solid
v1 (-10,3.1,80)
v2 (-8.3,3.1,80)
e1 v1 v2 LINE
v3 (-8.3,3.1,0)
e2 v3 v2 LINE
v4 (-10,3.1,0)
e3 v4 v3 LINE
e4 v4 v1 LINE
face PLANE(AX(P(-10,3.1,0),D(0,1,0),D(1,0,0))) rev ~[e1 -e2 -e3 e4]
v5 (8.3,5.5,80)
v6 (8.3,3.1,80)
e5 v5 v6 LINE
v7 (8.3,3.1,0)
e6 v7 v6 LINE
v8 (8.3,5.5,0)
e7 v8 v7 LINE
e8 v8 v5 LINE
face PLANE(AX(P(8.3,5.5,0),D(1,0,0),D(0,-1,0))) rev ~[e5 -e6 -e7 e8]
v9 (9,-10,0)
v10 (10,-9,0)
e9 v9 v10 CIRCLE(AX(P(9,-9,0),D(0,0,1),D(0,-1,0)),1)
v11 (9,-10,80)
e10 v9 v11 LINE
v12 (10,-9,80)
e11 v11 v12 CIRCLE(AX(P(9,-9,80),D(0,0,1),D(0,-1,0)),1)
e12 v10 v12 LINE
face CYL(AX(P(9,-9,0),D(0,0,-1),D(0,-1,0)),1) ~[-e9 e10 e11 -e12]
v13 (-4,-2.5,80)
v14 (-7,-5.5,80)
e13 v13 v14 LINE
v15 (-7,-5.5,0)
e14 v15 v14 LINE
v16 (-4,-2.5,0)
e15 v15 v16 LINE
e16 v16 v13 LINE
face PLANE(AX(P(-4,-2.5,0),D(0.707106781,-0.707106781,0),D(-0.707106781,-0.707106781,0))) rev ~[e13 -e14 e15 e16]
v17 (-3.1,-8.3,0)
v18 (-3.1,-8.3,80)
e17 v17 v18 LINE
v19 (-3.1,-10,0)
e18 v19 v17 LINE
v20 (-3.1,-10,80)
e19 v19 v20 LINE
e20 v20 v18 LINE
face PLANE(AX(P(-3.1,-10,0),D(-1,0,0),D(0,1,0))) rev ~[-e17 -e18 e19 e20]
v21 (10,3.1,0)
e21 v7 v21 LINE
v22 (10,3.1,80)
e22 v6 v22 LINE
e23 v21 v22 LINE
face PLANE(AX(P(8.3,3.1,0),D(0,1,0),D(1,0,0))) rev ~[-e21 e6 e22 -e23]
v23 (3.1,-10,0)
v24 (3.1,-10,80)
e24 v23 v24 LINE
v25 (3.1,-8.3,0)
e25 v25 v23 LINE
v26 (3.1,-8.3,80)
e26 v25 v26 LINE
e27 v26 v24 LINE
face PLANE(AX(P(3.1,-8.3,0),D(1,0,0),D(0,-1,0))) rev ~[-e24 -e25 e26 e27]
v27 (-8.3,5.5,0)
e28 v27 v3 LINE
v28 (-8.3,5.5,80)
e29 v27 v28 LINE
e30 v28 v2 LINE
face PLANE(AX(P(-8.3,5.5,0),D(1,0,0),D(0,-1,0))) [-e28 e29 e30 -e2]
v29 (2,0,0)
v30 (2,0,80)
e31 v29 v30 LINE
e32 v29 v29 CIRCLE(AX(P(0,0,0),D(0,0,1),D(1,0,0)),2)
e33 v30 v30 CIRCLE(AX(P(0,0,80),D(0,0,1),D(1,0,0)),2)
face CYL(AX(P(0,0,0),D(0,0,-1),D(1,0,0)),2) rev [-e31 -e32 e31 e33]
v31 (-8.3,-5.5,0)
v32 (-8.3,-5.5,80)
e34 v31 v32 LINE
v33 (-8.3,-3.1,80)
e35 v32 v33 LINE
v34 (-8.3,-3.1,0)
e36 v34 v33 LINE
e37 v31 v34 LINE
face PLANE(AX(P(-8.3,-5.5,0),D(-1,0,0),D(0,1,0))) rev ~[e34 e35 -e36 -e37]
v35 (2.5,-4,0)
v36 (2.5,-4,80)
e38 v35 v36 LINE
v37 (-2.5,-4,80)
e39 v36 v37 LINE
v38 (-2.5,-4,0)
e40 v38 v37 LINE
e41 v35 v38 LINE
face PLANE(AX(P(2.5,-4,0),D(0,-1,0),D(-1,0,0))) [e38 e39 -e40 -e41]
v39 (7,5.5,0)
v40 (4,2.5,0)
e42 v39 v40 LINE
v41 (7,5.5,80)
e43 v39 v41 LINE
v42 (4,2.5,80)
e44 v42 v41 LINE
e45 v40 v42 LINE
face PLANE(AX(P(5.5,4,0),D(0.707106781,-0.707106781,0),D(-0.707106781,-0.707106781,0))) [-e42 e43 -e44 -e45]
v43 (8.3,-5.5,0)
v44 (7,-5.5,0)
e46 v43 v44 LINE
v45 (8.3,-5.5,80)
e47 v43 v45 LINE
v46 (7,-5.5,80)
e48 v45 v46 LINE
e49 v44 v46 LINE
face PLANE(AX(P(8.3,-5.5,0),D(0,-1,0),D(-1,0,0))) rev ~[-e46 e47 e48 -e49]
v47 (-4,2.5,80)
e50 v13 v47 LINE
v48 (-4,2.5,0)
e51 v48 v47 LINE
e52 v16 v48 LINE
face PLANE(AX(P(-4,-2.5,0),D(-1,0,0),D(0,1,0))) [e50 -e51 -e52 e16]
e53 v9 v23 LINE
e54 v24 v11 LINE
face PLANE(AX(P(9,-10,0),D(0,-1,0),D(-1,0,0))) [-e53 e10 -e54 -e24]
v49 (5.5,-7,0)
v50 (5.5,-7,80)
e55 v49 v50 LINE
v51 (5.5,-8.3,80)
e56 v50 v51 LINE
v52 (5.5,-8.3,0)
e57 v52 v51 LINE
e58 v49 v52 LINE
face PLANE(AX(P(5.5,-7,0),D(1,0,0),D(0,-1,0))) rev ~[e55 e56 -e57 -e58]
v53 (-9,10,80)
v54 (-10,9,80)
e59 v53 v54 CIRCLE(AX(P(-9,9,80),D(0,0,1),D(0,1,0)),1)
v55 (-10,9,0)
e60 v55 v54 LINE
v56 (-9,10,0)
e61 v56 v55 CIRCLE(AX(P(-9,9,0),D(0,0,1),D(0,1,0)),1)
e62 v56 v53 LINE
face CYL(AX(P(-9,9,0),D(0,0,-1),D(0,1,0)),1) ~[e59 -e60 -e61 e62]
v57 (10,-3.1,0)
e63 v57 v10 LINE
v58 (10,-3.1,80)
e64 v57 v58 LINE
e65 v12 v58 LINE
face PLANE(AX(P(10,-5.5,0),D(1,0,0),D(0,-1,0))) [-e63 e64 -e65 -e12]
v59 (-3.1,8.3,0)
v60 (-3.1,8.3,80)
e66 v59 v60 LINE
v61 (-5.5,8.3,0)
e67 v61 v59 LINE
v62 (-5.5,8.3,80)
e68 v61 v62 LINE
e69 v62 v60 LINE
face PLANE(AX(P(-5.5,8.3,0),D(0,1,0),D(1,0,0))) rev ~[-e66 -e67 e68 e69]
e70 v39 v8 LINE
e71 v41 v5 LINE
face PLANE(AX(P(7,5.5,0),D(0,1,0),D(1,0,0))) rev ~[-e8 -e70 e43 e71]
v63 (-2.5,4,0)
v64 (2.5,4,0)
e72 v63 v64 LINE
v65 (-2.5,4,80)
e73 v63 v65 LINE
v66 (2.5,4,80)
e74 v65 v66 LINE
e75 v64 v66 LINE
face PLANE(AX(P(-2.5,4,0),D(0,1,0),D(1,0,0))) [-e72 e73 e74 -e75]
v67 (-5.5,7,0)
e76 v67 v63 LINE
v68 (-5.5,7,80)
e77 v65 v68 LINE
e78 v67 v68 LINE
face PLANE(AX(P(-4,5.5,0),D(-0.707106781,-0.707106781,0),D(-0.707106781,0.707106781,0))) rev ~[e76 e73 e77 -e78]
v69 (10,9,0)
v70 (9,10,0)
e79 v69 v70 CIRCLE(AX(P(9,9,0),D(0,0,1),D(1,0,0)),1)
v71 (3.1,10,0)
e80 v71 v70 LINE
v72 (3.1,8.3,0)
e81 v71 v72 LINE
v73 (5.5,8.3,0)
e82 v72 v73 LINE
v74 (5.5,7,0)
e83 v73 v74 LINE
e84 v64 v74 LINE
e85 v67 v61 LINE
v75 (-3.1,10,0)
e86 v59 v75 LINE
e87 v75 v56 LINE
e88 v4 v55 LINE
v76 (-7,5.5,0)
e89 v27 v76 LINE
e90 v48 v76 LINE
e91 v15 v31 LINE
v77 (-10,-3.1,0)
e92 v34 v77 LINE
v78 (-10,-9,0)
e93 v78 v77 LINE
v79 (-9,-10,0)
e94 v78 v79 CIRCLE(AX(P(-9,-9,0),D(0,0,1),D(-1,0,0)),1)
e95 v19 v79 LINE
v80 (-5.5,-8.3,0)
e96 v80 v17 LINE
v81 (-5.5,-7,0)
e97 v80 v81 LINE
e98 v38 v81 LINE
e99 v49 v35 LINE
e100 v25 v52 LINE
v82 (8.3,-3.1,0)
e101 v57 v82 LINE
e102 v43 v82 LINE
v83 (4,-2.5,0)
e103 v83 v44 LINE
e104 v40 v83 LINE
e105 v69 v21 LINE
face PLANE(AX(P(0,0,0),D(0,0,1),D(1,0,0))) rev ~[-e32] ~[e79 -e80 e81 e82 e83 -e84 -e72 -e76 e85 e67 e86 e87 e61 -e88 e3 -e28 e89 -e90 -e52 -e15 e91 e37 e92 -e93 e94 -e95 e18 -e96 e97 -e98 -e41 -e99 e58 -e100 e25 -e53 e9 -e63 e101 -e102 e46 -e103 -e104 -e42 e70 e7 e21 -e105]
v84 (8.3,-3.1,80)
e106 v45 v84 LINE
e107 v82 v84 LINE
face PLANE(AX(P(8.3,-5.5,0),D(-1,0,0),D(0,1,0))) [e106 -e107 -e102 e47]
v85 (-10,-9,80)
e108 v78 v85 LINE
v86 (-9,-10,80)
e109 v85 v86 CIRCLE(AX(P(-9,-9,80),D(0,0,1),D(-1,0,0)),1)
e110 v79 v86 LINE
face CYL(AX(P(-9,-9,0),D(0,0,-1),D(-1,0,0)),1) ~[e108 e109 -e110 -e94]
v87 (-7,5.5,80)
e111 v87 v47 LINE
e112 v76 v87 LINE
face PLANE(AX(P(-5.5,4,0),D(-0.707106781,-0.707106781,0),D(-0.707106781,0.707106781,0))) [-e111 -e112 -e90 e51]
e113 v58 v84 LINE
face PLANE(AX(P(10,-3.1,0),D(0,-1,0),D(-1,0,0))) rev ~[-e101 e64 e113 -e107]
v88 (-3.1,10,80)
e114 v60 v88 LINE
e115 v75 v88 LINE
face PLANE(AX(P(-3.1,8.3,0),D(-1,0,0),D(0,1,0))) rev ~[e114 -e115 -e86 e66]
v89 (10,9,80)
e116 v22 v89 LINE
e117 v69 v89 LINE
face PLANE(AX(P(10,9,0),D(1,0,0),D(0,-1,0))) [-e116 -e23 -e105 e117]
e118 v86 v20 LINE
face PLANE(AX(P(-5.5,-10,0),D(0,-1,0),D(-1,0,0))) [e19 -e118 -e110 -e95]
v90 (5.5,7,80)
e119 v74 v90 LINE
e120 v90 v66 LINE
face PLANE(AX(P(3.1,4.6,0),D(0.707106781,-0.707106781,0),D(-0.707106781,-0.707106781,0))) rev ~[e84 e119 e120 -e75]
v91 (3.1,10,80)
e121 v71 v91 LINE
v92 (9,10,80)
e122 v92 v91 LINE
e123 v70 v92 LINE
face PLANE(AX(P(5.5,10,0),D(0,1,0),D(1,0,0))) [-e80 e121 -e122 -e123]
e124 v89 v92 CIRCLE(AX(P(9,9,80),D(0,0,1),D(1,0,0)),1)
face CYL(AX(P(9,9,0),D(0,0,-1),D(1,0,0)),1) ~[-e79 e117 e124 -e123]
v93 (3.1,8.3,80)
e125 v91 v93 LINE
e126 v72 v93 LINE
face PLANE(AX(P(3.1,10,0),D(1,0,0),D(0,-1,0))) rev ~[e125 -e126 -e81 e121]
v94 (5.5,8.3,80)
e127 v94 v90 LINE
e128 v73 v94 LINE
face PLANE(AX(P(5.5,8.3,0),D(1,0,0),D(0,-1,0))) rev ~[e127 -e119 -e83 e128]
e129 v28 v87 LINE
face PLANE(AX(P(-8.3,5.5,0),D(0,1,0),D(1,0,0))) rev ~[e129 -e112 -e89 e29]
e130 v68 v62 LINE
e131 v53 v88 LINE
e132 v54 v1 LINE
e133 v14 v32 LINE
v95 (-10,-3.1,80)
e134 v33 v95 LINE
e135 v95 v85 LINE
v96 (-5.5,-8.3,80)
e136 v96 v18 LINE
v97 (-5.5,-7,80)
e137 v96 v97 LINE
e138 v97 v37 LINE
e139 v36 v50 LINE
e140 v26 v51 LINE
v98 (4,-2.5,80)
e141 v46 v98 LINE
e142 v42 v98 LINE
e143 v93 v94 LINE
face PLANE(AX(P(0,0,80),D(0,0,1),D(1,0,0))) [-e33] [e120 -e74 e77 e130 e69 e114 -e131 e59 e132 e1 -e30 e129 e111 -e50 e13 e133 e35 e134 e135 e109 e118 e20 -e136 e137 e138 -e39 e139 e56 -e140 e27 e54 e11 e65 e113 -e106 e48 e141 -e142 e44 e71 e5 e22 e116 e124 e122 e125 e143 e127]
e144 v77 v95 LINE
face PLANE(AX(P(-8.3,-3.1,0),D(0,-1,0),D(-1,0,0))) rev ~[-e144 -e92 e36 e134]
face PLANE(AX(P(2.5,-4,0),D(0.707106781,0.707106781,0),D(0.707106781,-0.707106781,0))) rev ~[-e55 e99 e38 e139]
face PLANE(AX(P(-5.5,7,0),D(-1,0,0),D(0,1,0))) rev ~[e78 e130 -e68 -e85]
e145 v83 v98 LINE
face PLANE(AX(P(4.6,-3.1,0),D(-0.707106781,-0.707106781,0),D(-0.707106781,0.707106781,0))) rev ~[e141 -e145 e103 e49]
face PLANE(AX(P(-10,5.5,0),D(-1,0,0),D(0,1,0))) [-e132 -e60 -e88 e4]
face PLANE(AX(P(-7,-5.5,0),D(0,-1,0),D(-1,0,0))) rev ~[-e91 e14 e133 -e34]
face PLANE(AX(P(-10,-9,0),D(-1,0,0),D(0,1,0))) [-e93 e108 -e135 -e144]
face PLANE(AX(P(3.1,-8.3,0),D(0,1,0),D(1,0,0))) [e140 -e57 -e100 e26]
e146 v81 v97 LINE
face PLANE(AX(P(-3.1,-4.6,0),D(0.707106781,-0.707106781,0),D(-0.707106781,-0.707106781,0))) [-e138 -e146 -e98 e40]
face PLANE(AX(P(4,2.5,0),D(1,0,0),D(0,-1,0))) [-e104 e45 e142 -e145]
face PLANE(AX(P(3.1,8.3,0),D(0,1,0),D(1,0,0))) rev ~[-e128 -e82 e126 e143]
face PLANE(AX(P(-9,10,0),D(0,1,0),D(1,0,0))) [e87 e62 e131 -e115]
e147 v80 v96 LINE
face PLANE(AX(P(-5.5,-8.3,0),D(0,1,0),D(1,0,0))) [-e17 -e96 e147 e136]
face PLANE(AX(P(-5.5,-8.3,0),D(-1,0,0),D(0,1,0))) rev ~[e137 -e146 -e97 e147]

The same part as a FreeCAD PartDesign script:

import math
import FreeCAD as App
import Part
import Sketcher
from FreeCAD import Vector

doc = App.newDocument("Part")
body = doc.addObject("PartDesign::Body", "Body")

# Sketch on XY plane
sketch1 = body.newObject("Sketcher::SketchObject", "Sketch")
sketch1.AttachmentSupport = (doc.getObject("XY_Plane"), [""])
sketch1.MapMode = "FlatFace"
sketch1.addGeometry([
    Part.ArcOfCircle(Part.Circle(Vector(-9, 9, 0), Vector(0, 0, 1), 1), math.radians(90), math.radians(180)),  # 0
    Part.LineSegment(Vector(-10, 9, 0), Vector(-10, 3.1, 0)),  # 1
    Part.LineSegment(Vector(-10, 3.1, 0), Vector(-8.3, 3.1, 0)),  # 2
    Part.LineSegment(Vector(-8.3, 3.1, 0), Vector(-8.3, 5.5, 0)),  # 3
    Part.LineSegment(Vector(-8.3, 5.5, 0), Vector(-7, 5.5, 0)),  # 4
    Part.LineSegment(Vector(-7, 5.5, 0), Vector(-4, 2.5, 0)),  # 5
    Part.LineSegment(Vector(-4, 2.5, 0), Vector(-4, -2.5, 0)),  # 6
    Part.LineSegment(Vector(-4, -2.5, 0), Vector(-7, -5.5, 0)),  # 7
    Part.LineSegment(Vector(-7, -5.5, 0), Vector(-8.3, -5.5, 0)),  # 8
    Part.LineSegment(Vector(-8.3, -5.5, 0), Vector(-8.3, -3.1, 0)),  # 9
    Part.LineSegment(Vector(-8.3, -3.1, 0), Vector(-10, -3.1, 0)),  # 10
    Part.LineSegment(Vector(-10, -3.1, 0), Vector(-10, -9, 0)),  # 11
    Part.ArcOfCircle(Part.Circle(Vector(-9, -9, 0), Vector(0, 0, 1), 1), math.radians(180), math.radians(270)),  # 12
    Part.LineSegment(Vector(-9, -10, 0), Vector(-3.1, -10, 0)),  # 13
    Part.LineSegment(Vector(-3.1, -10, 0), Vector(-3.1, -8.3, 0)),  # 14
    Part.LineSegment(Vector(-3.1, -8.3, 0), Vector(-5.5, -8.3, 0)),  # 15
    Part.LineSegment(Vector(-5.5, -8.3, 0), Vector(-5.5, -7, 0)),  # 16
    Part.LineSegment(Vector(-5.5, -7, 0), Vector(-2.5, -4, 0)),  # 17
    Part.LineSegment(Vector(-2.5, -4, 0), Vector(2.5, -4, 0)),  # 18
    Part.LineSegment(Vector(2.5, -4, 0), Vector(5.5, -7, 0)),  # 19
    Part.LineSegment(Vector(5.5, -7, 0), Vector(5.5, -8.3, 0)),  # 20
    Part.LineSegment(Vector(5.5, -8.3, 0), Vector(3.1, -8.3, 0)),  # 21
    Part.LineSegment(Vector(3.1, -8.3, 0), Vector(3.1, -10, 0)),  # 22
    Part.LineSegment(Vector(3.1, -10, 0), Vector(9, -10, 0)),  # 23
    Part.ArcOfCircle(Part.Circle(Vector(9, -9, 0), Vector(0, 0, 1), 1), math.radians(-90), math.radians(0)),  # 24
    Part.LineSegment(Vector(10, -9, 0), Vector(10, -3.1, 0)),  # 25
    Part.LineSegment(Vector(10, -3.1, 0), Vector(8.3, -3.1, 0)),  # 26
    Part.LineSegment(Vector(8.3, -3.1, 0), Vector(8.3, -5.5, 0)),  # 27
    Part.LineSegment(Vector(8.3, -5.5, 0), Vector(7, -5.5, 0)),  # 28
    Part.LineSegment(Vector(7, -5.5, 0), Vector(4, -2.5, 0)),  # 29
    Part.LineSegment(Vector(4, -2.5, 0), Vector(4, 2.5, 0)),  # 30
    Part.LineSegment(Vector(4, 2.5, 0), Vector(7, 5.5, 0)),  # 31
    Part.LineSegment(Vector(7, 5.5, 0), Vector(8.3, 5.5, 0)),  # 32
    Part.LineSegment(Vector(8.3, 5.5, 0), Vector(8.3, 3.1, 0)),  # 33
    Part.LineSegment(Vector(8.3, 3.1, 0), Vector(10, 3.1, 0)),  # 34
    Part.LineSegment(Vector(10, 3.1, 0), Vector(10, 9, 0)),  # 35
    Part.ArcOfCircle(Part.Circle(Vector(9, 9, 0), Vector(0, 0, 1), 1), math.radians(0), math.radians(90)),  # 36
    Part.LineSegment(Vector(9, 10, 0), Vector(3.1, 10, 0)),  # 37
    Part.LineSegment(Vector(3.1, 10, 0), Vector(3.1, 8.3, 0)),  # 38
    Part.LineSegment(Vector(3.1, 8.3, 0), Vector(5.5, 8.3, 0)),  # 39
    Part.LineSegment(Vector(5.5, 8.3, 0), Vector(5.5, 7, 0)),  # 40
    Part.LineSegment(Vector(5.5, 7, 0), Vector(2.5, 4, 0)),  # 41
    Part.LineSegment(Vector(2.5, 4, 0), Vector(-2.5, 4, 0)),  # 42
    Part.LineSegment(Vector(-2.5, 4, 0), Vector(-5.5, 7, 0)),  # 43
    Part.LineSegment(Vector(-5.5, 7, 0), Vector(-5.5, 8.3, 0)),  # 44
    Part.LineSegment(Vector(-5.5, 8.3, 0), Vector(-3.1, 8.3, 0)),  # 45
    Part.LineSegment(Vector(-3.1, 8.3, 0), Vector(-3.1, 10, 0)),  # 46
    Part.LineSegment(Vector(-3.1, 10, 0), Vector(-9, 10, 0)),  # 47
    Part.Circle(Vector(0, 0, 0), Vector(0, 0, 1), 2),  # 48
], False)
sketch1.addConstraint([
    Sketcher.Constraint("Tangent", 0, 2, 1, 1),
    Sketcher.Constraint("Coincident", 1, 2, 2, 1),
    Sketcher.Constraint("Coincident", 2, 2, 3, 1),
    Sketcher.Constraint("Coincident", 3, 2, 4, 1),
    Sketcher.Constraint("Coincident", 4, 2, 5, 1),
    Sketcher.Constraint("Coincident", 5, 2, 6, 1),
    Sketcher.Constraint("Coincident", 6, 2, 7, 1),
    Sketcher.Constraint("Coincident", 7, 2, 8, 1),
    Sketcher.Constraint("Coincident", 8, 2, 9, 1),
    Sketcher.Constraint("Coincident", 9, 2, 10, 1),
    Sketcher.Constraint("Coincident", 10, 2, 11, 1),
    Sketcher.Constraint("Tangent", 11, 2, 12, 1),
    Sketcher.Constraint("Tangent", 12, 2, 13, 1),
    Sketcher.Constraint("Coincident", 13, 2, 14, 1),
    Sketcher.Constraint("Coincident", 14, 2, 15, 1),
    Sketcher.Constraint("Coincident", 15, 2, 16, 1),
    Sketcher.Constraint("Coincident", 16, 2, 17, 1),
    Sketcher.Constraint("Coincident", 17, 2, 18, 1),
    Sketcher.Constraint("Coincident", 18, 2, 19, 1),
    Sketcher.Constraint("Coincident", 19, 2, 20, 1),
    Sketcher.Constraint("Coincident", 20, 2, 21, 1),
    Sketcher.Constraint("Coincident", 21, 2, 22, 1),
    Sketcher.Constraint("Coincident", 22, 2, 23, 1),
    Sketcher.Constraint("Tangent", 23, 2, 24, 1),
    Sketcher.Constraint("Tangent", 24, 2, 25, 1),
    Sketcher.Constraint("Coincident", 25, 2, 26, 1),
    Sketcher.Constraint("Coincident", 26, 2, 27, 1),
    Sketcher.Constraint("Coincident", 27, 2, 28, 1),
    Sketcher.Constraint("Coincident", 28, 2, 29, 1),
    Sketcher.Constraint("Coincident", 29, 2, 30, 1),
    Sketcher.Constraint("Coincident", 30, 2, 31, 1),
    Sketcher.Constraint("Coincident", 31, 2, 32, 1),
    Sketcher.Constraint("Coincident", 32, 2, 33, 1),
    Sketcher.Constraint("Coincident", 33, 2, 34, 1),
    Sketcher.Constraint("Coincident", 34, 2, 35, 1),
    Sketcher.Constraint("Tangent", 35, 2, 36, 1),
    Sketcher.Constraint("Tangent", 36, 2, 37, 1),
    Sketcher.Constraint("Coincident", 37, 2, 38, 1),
    Sketcher.Constraint("Coincident", 38, 2, 39, 1),
    Sketcher.Constraint("Coincident", 39, 2, 40, 1),
    Sketcher.Constraint("Coincident", 40, 2, 41, 1),
    Sketcher.Constraint("Coincident", 41, 2, 42, 1),
    Sketcher.Constraint("Coincident", 42, 2, 43, 1),
    Sketcher.Constraint("Coincident", 43, 2, 44, 1),
    Sketcher.Constraint("Coincident", 44, 2, 45, 1),
    Sketcher.Constraint("Coincident", 45, 2, 46, 1),
    Sketcher.Constraint("Coincident", 46, 2, 47, 1),
    Sketcher.Constraint("Tangent", 47, 2, 0, 1),
    Sketcher.Constraint("Vertical", 1),
    Sketcher.Constraint("Horizontal", 2),
    Sketcher.Constraint("Vertical", 3),
    Sketcher.Constraint("Horizontal", 4),
    Sketcher.Constraint("Vertical", 6),
    Sketcher.Constraint("Horizontal", 8),
    Sketcher.Constraint("Vertical", 9),
    Sketcher.Constraint("Horizontal", 10),
    Sketcher.Constraint("Vertical", 11),
    Sketcher.Constraint("Horizontal", 13),
    Sketcher.Constraint("Vertical", 14),
    Sketcher.Constraint("Horizontal", 15),
    Sketcher.Constraint("Vertical", 16),
    Sketcher.Constraint("Horizontal", 18),
    Sketcher.Constraint("Vertical", 20),
    Sketcher.Constraint("Horizontal", 21),
    Sketcher.Constraint("Vertical", 22),
    Sketcher.Constraint("Horizontal", 23),
    Sketcher.Constraint("Vertical", 25),
    Sketcher.Constraint("Horizontal", 26),
    Sketcher.Constraint("Vertical", 27),
    Sketcher.Constraint("Horizontal", 28),
    Sketcher.Constraint("Vertical", 30),
    Sketcher.Constraint("Horizontal", 32),
    Sketcher.Constraint("Vertical", 33),
    Sketcher.Constraint("Horizontal", 34),
    Sketcher.Constraint("Vertical", 35),
    Sketcher.Constraint("Horizontal", 37),
    Sketcher.Constraint("Vertical", 38),
    Sketcher.Constraint("Horizontal", 39),
    Sketcher.Constraint("Vertical", 40),
    Sketcher.Constraint("Horizontal", 42),
    Sketcher.Constraint("Vertical", 44),
    Sketcher.Constraint("Horizontal", 45),
    Sketcher.Constraint("Vertical", 46),
    Sketcher.Constraint("Horizontal", 47),
    Sketcher.Constraint("Coincident", 48, 3, -1, 1),
    Sketcher.Constraint("Equal", 0, 12),
    Sketcher.Constraint("Equal", 12, 24),
    Sketcher.Constraint("Equal", 24, 36),
    Sketcher.Constraint("Symmetric", 0, 3, 24, 3, -1, 1),
    Sketcher.Constraint("Symmetric", 12, 3, 36, 3, -1, 1),
    Sketcher.Constraint("Symmetric", 2, 2, 26, 2, -1, 1),
    Sketcher.Constraint("Symmetric", 4, 2, 28, 2, -1, 1),
    Sketcher.Constraint("Symmetric", 5, 2, 29, 2, -1, 1),
    Sketcher.Constraint("Symmetric", 7, 2, 31, 2, -1, 1),
    Sketcher.Constraint("Symmetric", 9, 2, 33, 2, -1, 1),
    Sketcher.Constraint("Symmetric", 14, 2, 38, 2, -1, 1),
    Sketcher.Constraint("Symmetric", 16, 2, 40, 2, -1, 1),
    Sketcher.Constraint("Symmetric", 17, 2, 41, 2, -1, 1),
    Sketcher.Constraint("Symmetric", 19, 2, 43, 2, -1, 1),
    Sketcher.Constraint("Symmetric", 21, 2, 45, 2, -1, 1),
    Sketcher.Constraint("Symmetric", 12, 3, 24, 3, -2),
    Sketcher.Constraint("Symmetric", 16, 2, 19, 2, -2),
    Sketcher.Constraint("Symmetric", 14, 2, 21, 2, -2),
    Sketcher.Constraint("Symmetric", 9, 2, 26, 2, -2),
    Sketcher.Constraint("Symmetric", 7, 2, 28, 2, -2),
    Sketcher.Constraint("Perpendicular", 5, 7),
    Sketcher.Constraint("Parallel", 7, 17),
    Sketcher.Constraint("Perpendicular", 17, 19),
    Sketcher.Constraint("Perpendicular", 29, 31),
    Sketcher.Constraint("Perpendicular", 41, 43),
    Sketcher.Constraint("Horizontal", 6, 2, 29, 2),
    Sketcher.Constraint("Equal", 47, 1),
    Sketcher.Constraint("Equal", 45, 3),
    Sketcher.Constraint("Equal", 42, 6),
    Sketcher.Constraint("Equal", 34, 14),
    Sketcher.Constraint("Equal", 32, 16),
    Sketcher.Constraint("Equal", 7, 17),
    Sketcher.Constraint("Diameter", 48, 4.0),
    Sketcher.Constraint("Radius", 0, 1.0),
    Sketcher.Constraint("DistanceX", 4, 1, 4, 2, 1.3),
    Sketcher.Constraint("DistanceX", 5, 2, -1, 1, 4.0),
    Sketcher.Constraint("DistanceY", 7, 2, 5, 2, 8.0),
    Sketcher.Constraint("DistanceY", -1, 1, 1, 2, 3.1),
    Sketcher.Constraint("DistanceY", -1, 1, 3, 2, 5.5),
    Sketcher.Constraint("DistanceX", 2, 1, 2, 2, 1.7),
])
pad1 = body.newObject("PartDesign::Pad", "Pad")
pad1.Profile = sketch1
pad1.Length = 80

doc.recompute()
